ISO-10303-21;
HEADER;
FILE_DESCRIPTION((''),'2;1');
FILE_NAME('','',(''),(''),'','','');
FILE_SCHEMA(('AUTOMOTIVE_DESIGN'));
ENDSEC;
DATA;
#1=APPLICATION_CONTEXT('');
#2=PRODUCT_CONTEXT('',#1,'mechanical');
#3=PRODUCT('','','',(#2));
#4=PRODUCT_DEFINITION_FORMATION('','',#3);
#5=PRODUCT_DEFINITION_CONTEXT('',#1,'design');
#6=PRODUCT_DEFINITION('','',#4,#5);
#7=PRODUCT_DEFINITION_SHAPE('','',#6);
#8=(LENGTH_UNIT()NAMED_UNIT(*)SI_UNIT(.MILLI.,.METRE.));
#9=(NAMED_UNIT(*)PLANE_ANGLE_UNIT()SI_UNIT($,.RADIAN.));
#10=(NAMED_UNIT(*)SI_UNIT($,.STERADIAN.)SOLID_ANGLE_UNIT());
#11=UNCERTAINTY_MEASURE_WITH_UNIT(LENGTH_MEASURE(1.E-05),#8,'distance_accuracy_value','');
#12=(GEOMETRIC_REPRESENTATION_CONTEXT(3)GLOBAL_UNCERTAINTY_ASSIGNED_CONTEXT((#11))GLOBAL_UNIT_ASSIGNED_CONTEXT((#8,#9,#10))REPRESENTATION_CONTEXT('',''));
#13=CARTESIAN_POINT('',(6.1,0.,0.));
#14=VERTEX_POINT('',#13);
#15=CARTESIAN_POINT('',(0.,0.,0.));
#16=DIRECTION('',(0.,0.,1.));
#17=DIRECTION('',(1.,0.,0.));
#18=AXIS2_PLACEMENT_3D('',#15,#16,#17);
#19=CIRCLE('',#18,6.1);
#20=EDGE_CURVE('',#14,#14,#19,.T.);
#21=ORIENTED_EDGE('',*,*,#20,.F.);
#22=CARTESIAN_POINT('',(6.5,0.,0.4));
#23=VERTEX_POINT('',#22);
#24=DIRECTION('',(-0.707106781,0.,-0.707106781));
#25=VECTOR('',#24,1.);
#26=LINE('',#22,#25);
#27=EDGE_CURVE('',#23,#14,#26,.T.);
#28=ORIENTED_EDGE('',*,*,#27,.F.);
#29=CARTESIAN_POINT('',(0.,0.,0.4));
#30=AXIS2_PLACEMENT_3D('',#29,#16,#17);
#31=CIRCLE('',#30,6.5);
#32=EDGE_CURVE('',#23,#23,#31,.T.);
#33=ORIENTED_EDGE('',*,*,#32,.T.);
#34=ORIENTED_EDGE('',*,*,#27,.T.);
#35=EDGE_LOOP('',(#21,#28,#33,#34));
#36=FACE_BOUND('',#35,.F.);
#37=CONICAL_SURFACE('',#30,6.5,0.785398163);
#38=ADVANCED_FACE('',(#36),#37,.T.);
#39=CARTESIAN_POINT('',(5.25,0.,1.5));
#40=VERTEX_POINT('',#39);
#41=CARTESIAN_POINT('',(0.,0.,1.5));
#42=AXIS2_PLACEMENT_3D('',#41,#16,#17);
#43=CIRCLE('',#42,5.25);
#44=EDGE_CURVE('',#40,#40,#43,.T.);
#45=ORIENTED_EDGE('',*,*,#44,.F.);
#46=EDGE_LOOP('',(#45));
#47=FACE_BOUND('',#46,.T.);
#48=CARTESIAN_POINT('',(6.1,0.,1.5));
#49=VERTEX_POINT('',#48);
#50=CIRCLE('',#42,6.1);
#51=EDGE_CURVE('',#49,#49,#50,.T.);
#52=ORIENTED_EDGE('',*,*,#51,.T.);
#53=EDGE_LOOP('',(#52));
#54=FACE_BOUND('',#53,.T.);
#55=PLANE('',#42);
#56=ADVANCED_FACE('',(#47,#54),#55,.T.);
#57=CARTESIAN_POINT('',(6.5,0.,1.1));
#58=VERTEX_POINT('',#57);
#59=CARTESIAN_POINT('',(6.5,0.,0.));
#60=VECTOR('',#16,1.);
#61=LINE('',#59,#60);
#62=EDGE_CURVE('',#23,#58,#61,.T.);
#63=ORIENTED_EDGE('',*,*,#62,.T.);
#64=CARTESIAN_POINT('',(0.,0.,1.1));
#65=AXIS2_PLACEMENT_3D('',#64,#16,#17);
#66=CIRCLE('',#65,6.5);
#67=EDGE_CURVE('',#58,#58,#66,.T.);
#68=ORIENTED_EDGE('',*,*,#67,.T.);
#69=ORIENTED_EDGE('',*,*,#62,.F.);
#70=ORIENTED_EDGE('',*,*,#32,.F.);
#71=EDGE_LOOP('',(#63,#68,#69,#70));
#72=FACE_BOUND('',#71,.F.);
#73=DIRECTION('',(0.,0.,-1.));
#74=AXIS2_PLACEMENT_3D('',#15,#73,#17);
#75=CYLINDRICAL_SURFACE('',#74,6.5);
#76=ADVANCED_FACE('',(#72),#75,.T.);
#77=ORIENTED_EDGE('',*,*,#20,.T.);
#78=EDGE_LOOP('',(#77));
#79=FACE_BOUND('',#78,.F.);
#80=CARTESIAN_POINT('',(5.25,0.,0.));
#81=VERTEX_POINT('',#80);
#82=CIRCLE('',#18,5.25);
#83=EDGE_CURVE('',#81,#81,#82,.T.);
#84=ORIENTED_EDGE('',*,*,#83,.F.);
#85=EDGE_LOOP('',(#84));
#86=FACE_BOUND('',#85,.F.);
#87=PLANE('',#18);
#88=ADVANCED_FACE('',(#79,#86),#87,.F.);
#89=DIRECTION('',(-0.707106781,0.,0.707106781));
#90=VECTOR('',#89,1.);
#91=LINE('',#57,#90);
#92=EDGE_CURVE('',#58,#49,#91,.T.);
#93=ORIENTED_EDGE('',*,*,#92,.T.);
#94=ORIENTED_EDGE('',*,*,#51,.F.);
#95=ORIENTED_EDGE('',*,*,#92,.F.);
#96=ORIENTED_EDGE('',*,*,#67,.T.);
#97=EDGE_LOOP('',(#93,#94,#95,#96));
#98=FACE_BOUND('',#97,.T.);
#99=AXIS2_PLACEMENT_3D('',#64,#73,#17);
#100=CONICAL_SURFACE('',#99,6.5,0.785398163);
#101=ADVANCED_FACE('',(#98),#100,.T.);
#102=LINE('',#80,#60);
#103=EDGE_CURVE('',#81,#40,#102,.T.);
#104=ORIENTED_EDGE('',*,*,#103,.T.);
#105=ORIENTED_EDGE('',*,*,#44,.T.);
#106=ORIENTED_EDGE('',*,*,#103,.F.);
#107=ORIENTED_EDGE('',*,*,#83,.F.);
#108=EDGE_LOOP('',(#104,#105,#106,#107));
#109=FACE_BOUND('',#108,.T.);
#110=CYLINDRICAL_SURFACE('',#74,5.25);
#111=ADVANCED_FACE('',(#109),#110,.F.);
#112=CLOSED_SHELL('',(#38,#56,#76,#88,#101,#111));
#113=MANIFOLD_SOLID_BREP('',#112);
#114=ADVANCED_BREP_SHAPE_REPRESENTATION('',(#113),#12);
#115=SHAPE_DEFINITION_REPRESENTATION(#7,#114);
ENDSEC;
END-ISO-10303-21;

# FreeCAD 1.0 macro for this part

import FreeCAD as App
import Part
import Sketcher
from FreeCAD import Vector


def edges_at(feature, points):
    """Names of the edges that pass closest to the given points."""
    edges = feature.Shape.Edges
    near = lambda p: min(range(len(edges)), key=lambda i: edges[i].distToShape(Part.Vertex(*p))[0])
    return sorted({f"Edge{near(p) + 1}" for p in points})

doc = App.newDocument("Part")
body = doc.addObject("PartDesign::Body", "Body")

sketch1 = body.newObject("Sketcher::SketchObject", "Sketch")
sketch1.AttachmentSupport = (doc.getObject("XY_Plane"), [""])
sketch1.MapMode = "FlatFace"
sketch1.addGeometry([
    Part.Circle(Vector(0, 0, 0), Vector(0, 0, 1), 6),
    Part.Circle(Vector(0, 0, 0), Vector(0, 0, 1), 5),
], False)
sketch1.addConstraint([
    Sketcher.Constraint("Coincident", 0, 3, -1, 1),
    Sketcher.Constraint("Coincident", 1, 3, -1, 1),
    Sketcher.Constraint("Diameter", 0, 13.0),
    Sketcher.Constraint("Diameter", 1, 10.5),
])
pad1 = body.newObject("PartDesign::Pad", "Pad")
pad1.Profile = sketch1
pad1.Length = 1.5
doc.recompute()

chamfer = body.newObject("PartDesign::Chamfer", "Chamfer")
chamfer.Base = (pad1, edges_at(pad1, [(-6.5, 0, 1.5), (-6.5, 0, 0)]))
chamfer.Size = 0.4

doc.recompute()
